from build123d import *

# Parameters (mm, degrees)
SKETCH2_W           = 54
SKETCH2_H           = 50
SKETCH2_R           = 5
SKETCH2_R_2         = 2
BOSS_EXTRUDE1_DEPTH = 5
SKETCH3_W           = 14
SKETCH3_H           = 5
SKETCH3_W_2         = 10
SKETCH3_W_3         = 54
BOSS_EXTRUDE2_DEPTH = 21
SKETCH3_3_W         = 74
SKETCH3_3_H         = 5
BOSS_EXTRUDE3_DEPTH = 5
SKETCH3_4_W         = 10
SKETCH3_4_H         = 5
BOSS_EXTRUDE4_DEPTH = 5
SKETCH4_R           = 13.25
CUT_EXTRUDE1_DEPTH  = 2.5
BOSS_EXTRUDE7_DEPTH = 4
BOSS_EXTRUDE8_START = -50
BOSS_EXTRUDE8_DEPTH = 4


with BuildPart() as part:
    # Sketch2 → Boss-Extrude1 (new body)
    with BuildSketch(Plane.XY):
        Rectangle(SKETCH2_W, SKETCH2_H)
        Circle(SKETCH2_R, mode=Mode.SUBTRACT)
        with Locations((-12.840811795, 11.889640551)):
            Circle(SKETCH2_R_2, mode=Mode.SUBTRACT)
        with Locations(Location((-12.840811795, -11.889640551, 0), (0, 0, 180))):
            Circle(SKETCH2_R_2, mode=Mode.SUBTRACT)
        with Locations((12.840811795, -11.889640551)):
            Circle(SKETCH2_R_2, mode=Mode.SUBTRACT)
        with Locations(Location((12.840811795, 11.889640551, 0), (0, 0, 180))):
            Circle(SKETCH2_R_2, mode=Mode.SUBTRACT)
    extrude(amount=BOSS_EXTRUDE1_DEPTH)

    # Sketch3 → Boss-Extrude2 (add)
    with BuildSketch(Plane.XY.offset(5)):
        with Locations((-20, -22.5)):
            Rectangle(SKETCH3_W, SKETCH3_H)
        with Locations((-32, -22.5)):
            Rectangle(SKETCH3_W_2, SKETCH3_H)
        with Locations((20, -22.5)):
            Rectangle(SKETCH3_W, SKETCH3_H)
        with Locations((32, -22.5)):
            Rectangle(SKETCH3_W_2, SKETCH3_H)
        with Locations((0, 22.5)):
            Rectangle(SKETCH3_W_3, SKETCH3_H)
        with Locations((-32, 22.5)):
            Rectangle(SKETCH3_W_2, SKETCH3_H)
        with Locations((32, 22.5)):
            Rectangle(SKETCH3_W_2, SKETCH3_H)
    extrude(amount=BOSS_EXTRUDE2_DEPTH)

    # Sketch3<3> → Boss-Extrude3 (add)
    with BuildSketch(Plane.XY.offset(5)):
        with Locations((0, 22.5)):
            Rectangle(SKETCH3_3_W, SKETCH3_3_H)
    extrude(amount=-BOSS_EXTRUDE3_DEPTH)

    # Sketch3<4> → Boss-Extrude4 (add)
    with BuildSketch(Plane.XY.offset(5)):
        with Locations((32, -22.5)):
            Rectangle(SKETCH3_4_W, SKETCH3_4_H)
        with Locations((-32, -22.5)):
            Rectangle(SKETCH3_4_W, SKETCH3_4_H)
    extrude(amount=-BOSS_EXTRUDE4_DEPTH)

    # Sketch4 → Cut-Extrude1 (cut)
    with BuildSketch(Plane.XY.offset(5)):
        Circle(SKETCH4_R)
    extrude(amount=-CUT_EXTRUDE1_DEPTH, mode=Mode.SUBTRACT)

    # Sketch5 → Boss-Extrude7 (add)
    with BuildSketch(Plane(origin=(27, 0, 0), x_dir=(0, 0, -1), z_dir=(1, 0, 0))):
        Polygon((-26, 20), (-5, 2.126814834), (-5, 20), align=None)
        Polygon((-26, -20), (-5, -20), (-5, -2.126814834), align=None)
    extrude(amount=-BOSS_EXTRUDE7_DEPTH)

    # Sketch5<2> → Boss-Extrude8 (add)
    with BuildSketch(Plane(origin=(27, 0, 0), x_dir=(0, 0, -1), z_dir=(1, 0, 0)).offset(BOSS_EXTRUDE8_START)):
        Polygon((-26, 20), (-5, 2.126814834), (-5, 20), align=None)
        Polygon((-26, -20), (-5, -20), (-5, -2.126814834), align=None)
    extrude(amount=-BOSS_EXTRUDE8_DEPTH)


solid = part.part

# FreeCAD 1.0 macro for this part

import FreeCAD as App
import Part
import Sketcher
from FreeCAD import Vector


def add_polygon(sketch, points):
    """Adds a closed chain of lines whose ends are joined by coincident constraints."""
    first, n = sketch.GeometryCount, len(points)
    for a, b in zip(points, points[1:] + points[:1]):
        sketch.addGeometry(Part.LineSegment(App.Vector(*a, 0), App.Vector(*b, 0)), False)
    for i in range(n):
        sketch.addConstraint(Sketcher.Constraint("Coincident", first + i, 2, first + (i + 1) % n, 1))

doc = App.newDocument("Part")
body = doc.addObject("PartDesign::Body", "Body")

# Sketch on XY plane
sketch1 = body.newObject("Sketcher::SketchObject", "Sketch")
sketch1.AttachmentSupport = (doc.getObject("XY_Plane"), [""])
sketch1.MapMode = "FlatFace"
add_polygon(sketch1, [(-27, 25), (-27, -25), (27, -25), (27, 25)])  # lines 0-3
sketch1.addGeometry(Part.Circle(Vector(-12.8, -11.9, 0), Vector(0, 0, 1), 2), False)  # 4
sketch1.addGeometry(Part.Circle(Vector(0, 0, 0), Vector(0, 0, 1), 5), False)  # 5
sketch1.addGeometry(Part.Circle(Vector(12.8, -11.9, 0), Vector(0, 0, 1), 2), False)  # 6
sketch1.addGeometry(Part.Circle(Vector(-12.8, 11.9, 0), Vector(0, 0, 1), 2), False)  # 7
sketch1.addGeometry(Part.Circle(Vector(12.8, 11.9, 0), Vector(0, 0, 1), 2), False)  # 8
sketch1.addConstraint(Sketcher.Constraint("Vertical", 0))
sketch1.addConstraint(Sketcher.Constraint("Horizontal", 1))
sketch1.addConstraint(Sketcher.Constraint("Vertical", 2))
sketch1.addConstraint(Sketcher.Constraint("Horizontal", 3))
sketch1.addConstraint(Sketcher.Constraint("Coincident", 5, 3, -1, 1))
sketch1.addConstraint(Sketcher.Constraint("Equal", 4, 6))
sketch1.addConstraint(Sketcher.Constraint("Equal", 6, 7))
sketch1.addConstraint(Sketcher.Constraint("Equal", 7, 8))
sketch1.addConstraint(Sketcher.Constraint("Symmetric", 6, 3, 7, 3, -1, 1))
sketch1.addConstraint(Sketcher.Constraint("Symmetric", 4, 3, 8, 3, -1, 1))
sketch1.addConstraint(Sketcher.Constraint("Symmetric", 0, 2, 2, 2, -1, 1))
sketch1.addConstraint(Sketcher.Constraint("Symmetric", 4, 3, 6, 3, -2))
sketch1.addConstraint(Sketcher.Constraint("Diameter", 4, 4.0))
sketch1.addConstraint(Sketcher.Constraint("Diameter", 5, 10.0))
sketch1.addConstraint(Sketcher.Constraint("DistanceX", 1, 1, 1, 2, 54.0))
sketch1.addConstraint(Sketcher.Constraint("DistanceY", 0, 2, 0, 1, 50.0))
sketch1.addConstraint(Sketcher.Constraint("DistanceX", 4, 3, -1, 1, 12.840812))
sketch1.addConstraint(Sketcher.Constraint("DistanceY", 4, 3, -1, 1, 11.889641))
pad1 = body.newObject("PartDesign::Pad", "Pad")
pad1.Profile = sketch1
pad1.Length = 5

# Sketch on XY plane
sketch2 = body.newObject("Sketcher::SketchObject", "Sketch001")
sketch2.AttachmentSupport = (doc.getObject("XY_Plane"), [""])
sketch2.MapMode = "FlatFace"
sketch2.AttachmentOffset = App.Placement(Vector(0, 0, 5), App.Rotation())
add_polygon(sketch2, [(-13, -25), (-13, -20), (-37, -20), (-37, -25)])  # lines 0-3
add_polygon(sketch2, [(13, -20), (13, -25), (37, -25), (37, -20)])  # lines 4-7
add_polygon(sketch2, [(-37, 25), (-37, 20), (37, 20), (37, 25)])  # lines 8-11
sketch2.addConstraint(Sketcher.Constraint("Vertical", 0))
sketch2.addConstraint(Sketcher.Constraint("Horizontal", 1))
sketch2.addConstraint(Sketcher.Constraint("Vertical", 2))
sketch2.addConstraint(Sketcher.Constraint("Horizontal", 3))
sketch2.addConstraint(Sketcher.Constraint("Vertical", 4))
sketch2.addConstraint(Sketcher.Constraint("Horizontal", 5))
sketch2.addConstraint(Sketcher.Constraint("Vertical", 6))
sketch2.addConstraint(Sketcher.Constraint("Horizontal", 7))
sketch2.addConstraint(Sketcher.Constraint("Vertical", 8))
sketch2.addConstraint(Sketcher.Constraint("Horizontal", 9))
sketch2.addConstraint(Sketcher.Constraint("Vertical", 10))
sketch2.addConstraint(Sketcher.Constraint("Horizontal", 11))
sketch2.addConstraint(Sketcher.Constraint("Symmetric", 6, 2, 8, 2, -1, 1))
sketch2.addConstraint(Sketcher.Constraint("Symmetric", 1, 2, 9, 2, -1, 1))
sketch2.addConstraint(Sketcher.Constraint("Symmetric", 3, 2, 4, 2, -2))
sketch2.addConstraint(Sketcher.Constraint("Symmetric", 5, 2, 10, 2, -1))
sketch2.addConstraint(Sketcher.Constraint("DistanceX", 1, 2, 1, 1, 24.0))
sketch2.addConstraint(Sketcher.Constraint("DistanceX", 9, 1, 9, 2, 74.0))
sketch2.addConstraint(Sketcher.Constraint("DistanceY", 0, 1, 0, 2, 5.0))
sketch2.addConstraint(Sketcher.Constraint("DistanceY", 0, 2, -1, 1, 20.0))
pad2 = body.newObject("PartDesign::Pad", "Pad001")
pad2.Profile = sketch2
pad2.Length = 21

# Sketch on XY plane
sketch3 = body.newObject("Sketcher::SketchObject", "Sketch002")
sketch3.AttachmentSupport = (doc.getObject("XY_Plane"), [""])
sketch3.MapMode = "FlatFace"
sketch3.AttachmentOffset = App.Placement(Vector(0, 0, 5), App.Rotation())
add_polygon(sketch3, [(-37, 25), (-37, 20), (37, 20), (37, 25)])  # lines 0-3
sketch3.addConstraint(Sketcher.Constraint("Vertical", 0))
sketch3.addConstraint(Sketcher.Constraint("Horizontal", 1))
sketch3.addConstraint(Sketcher.Constraint("Vertical", 2))
sketch3.addConstraint(Sketcher.Constraint("Horizontal", 3))
sketch3.addConstraint(Sketcher.Constraint("DistanceX", 1, 1, 1, 2, 74.0))
sketch3.addConstraint(Sketcher.Constraint("DistanceY", 0, 2, 0, 1, 5.0))
sketch3.addConstraint(Sketcher.Constraint("DistanceX", 0, 2, -1, 1, 37.0))
sketch3.addConstraint(Sketcher.Constraint("DistanceY", -1, 1, 0, 2, 20.0))
pad3 = body.newObject("PartDesign::Pad", "Pad002")
pad3.Profile = sketch3
pad3.Length = 5
pad3.Reversed = True

# Sketch on XY plane
sketch4 = body.newObject("Sketcher::SketchObject", "Sketch003")
sketch4.AttachmentSupport = (doc.getObject("XY_Plane"), [""])
sketch4.MapMode = "FlatFace"
sketch4.AttachmentOffset = App.Placement(Vector(0, 0, 5), App.Rotation())
add_polygon(sketch4, [(27, -20), (27, -25), (37, -25), (37, -20)])  # lines 0-3
add_polygon(sketch4, [(-37, -20), (-37, -25), (-27, -25), (-27, -20)])  # lines 4-7
sketch4.addConstraint(Sketcher.Constraint("Vertical", 0))
sketch4.addConstraint(Sketcher.Constraint("Horizontal", 1))
sketch4.addConstraint(Sketcher.Constraint("Vertical", 2))
sketch4.addConstraint(Sketcher.Constraint("Horizontal", 3))
sketch4.addConstraint(Sketcher.Constraint("Vertical", 4))
sketch4.addConstraint(Sketcher.Constraint("Horizontal", 5))
sketch4.addConstraint(Sketcher.Constraint("Vertical", 6))
sketch4.addConstraint(Sketcher.Constraint("Horizontal", 7))
sketch4.addConstraint(Sketcher.Constraint("Symmetric", 1, 2, 4, 2, -2))
sketch4.addConstraint(Sketcher.Constraint("Symmetric", 3, 2, 6, 2, -2))
sketch4.addConstraint(Sketcher.Constraint("DistanceX", 1, 1, 1, 2, 10.0))
sketch4.addConstraint(Sketcher.Constraint("DistanceY", 0, 2, 0, 1, 5.0))
sketch4.addConstraint(Sketcher.Constraint("DistanceX", -1, 1, 0, 2, 27.0))
sketch4.addConstraint(Sketcher.Constraint("DistanceY", 0, 2, -1, 1, 25.0))
pad4 = body.newObject("PartDesign::Pad", "Pad003")
pad4.Profile = sketch4
pad4.Length = 5
pad4.Reversed = True

# Sketch on XY plane
sketch5 = body.newObject("Sketcher::SketchObject", "Sketch004")
sketch5.AttachmentSupport = (doc.getObject("XY_Plane"), [""])
sketch5.MapMode = "FlatFace"
sketch5.AttachmentOffset = App.Placement(Vector(0, 0, 5), App.Rotation())
sketch5.addGeometry(Part.Circle(Vector(0, 0, 0), Vector(0, 0, 1), 13), False)
sketch5.addConstraint(Sketcher.Constraint("Coincident", 0, 3, -1, 1))
sketch5.addConstraint(Sketcher.Constraint("Diameter", 0, 26.5))
pocket1 = body.newObject("PartDesign::Pocket", "Pocket")
pocket1.Profile = sketch5
pocket1.Length = 2.5

# Sketch on YZ plane
sketch6 = body.newObject("Sketcher::SketchObject", "Sketch005")
sketch6.AttachmentSupport = (doc.getObject("YZ_Plane"), [""])
sketch6.MapMode = "FlatFace"
sketch6.AttachmentOffset = App.Placement(Vector(0, 0, 27), App.Rotation())
add_polygon(sketch6, [(20, 26), (2, 5), (20, 5)])  # lines 0-2
add_polygon(sketch6, [(-20, 26), (-20, 5), (-2, 5)])  # lines 3-5
sketch6.addConstraint(Sketcher.Constraint("Horizontal", 1))
sketch6.addConstraint(Sketcher.Constraint("Vertical", 2))
sketch6.addConstraint(Sketcher.Constraint("Vertical", 3))
sketch6.addConstraint(Sketcher.Constraint("Horizontal", 4))
sketch6.addConstraint(Sketcher.Constraint("Symmetric", 1, 2, 3, 2, -2))
sketch6.addConstraint(Sketcher.Constraint("Horizontal", 2, 2, 5, 2))
sketch6.addConstraint(Sketcher.Constraint("Equal", 1, 4))
sketch6.addConstraint(Sketcher.Constraint("DistanceY", 2, 1, 2, 2, 21.0))
sketch6.addConstraint(Sketcher.Constraint("DistanceY", -1, 1, 0, 2, 5.0))
sketch6.addConstraint(Sketcher.Constraint("DistanceX", -1, 1, 1, 2, 20.0))
sketch6.addConstraint(Sketcher.Constraint("Distance", 0, 27.576271))
pad5 = body.newObject("PartDesign::Pad", "Pad004")
pad5.Profile = sketch6
pad5.Length = 4
pad5.Reversed = True

# Sketch on YZ plane
sketch7 = body.newObject("Sketcher::SketchObject", "Sketch006")
sketch7.AttachmentSupport = (doc.getObject("YZ_Plane"), [""])
sketch7.MapMode = "FlatFace"
sketch7.AttachmentOffset = App.Placement(Vector(0, 0, -23), App.Rotation())
add_polygon(sketch7, [(20, 26), (2, 5), (20, 5)])  # lines 0-2
add_polygon(sketch7, [(-20, 26), (-20, 5), (-2, 5)])  # lines 3-5
sketch7.addConstraint(Sketcher.Constraint("Horizontal", 1))
sketch7.addConstraint(Sketcher.Constraint("Vertical", 2))
sketch7.addConstraint(Sketcher.Constraint("Vertical", 3))
sketch7.addConstraint(Sketcher.Constraint("Horizontal", 4))
sketch7.addConstraint(Sketcher.Constraint("Symmetric", 1, 2, 3, 2, -2))
sketch7.addConstraint(Sketcher.Constraint("Horizontal", 2, 2, 5, 2))
sketch7.addConstraint(Sketcher.Constraint("Equal", 1, 4))
sketch7.addConstraint(Sketcher.Constraint("DistanceY", 2, 1, 2, 2, 21.0))
sketch7.addConstraint(Sketcher.Constraint("DistanceY", -1, 1, 0, 2, 5.0))
sketch7.addConstraint(Sketcher.Constraint("DistanceX", -1, 1, 1, 2, 20.0))
sketch7.addConstraint(Sketcher.Constraint("Distance", 0, 27.576271))
pad6 = body.newObject("PartDesign::Pad", "Pad005")
pad6.Profile = sketch7
pad6.Length = 4
pad6.Reversed = True

doc.recompute()
